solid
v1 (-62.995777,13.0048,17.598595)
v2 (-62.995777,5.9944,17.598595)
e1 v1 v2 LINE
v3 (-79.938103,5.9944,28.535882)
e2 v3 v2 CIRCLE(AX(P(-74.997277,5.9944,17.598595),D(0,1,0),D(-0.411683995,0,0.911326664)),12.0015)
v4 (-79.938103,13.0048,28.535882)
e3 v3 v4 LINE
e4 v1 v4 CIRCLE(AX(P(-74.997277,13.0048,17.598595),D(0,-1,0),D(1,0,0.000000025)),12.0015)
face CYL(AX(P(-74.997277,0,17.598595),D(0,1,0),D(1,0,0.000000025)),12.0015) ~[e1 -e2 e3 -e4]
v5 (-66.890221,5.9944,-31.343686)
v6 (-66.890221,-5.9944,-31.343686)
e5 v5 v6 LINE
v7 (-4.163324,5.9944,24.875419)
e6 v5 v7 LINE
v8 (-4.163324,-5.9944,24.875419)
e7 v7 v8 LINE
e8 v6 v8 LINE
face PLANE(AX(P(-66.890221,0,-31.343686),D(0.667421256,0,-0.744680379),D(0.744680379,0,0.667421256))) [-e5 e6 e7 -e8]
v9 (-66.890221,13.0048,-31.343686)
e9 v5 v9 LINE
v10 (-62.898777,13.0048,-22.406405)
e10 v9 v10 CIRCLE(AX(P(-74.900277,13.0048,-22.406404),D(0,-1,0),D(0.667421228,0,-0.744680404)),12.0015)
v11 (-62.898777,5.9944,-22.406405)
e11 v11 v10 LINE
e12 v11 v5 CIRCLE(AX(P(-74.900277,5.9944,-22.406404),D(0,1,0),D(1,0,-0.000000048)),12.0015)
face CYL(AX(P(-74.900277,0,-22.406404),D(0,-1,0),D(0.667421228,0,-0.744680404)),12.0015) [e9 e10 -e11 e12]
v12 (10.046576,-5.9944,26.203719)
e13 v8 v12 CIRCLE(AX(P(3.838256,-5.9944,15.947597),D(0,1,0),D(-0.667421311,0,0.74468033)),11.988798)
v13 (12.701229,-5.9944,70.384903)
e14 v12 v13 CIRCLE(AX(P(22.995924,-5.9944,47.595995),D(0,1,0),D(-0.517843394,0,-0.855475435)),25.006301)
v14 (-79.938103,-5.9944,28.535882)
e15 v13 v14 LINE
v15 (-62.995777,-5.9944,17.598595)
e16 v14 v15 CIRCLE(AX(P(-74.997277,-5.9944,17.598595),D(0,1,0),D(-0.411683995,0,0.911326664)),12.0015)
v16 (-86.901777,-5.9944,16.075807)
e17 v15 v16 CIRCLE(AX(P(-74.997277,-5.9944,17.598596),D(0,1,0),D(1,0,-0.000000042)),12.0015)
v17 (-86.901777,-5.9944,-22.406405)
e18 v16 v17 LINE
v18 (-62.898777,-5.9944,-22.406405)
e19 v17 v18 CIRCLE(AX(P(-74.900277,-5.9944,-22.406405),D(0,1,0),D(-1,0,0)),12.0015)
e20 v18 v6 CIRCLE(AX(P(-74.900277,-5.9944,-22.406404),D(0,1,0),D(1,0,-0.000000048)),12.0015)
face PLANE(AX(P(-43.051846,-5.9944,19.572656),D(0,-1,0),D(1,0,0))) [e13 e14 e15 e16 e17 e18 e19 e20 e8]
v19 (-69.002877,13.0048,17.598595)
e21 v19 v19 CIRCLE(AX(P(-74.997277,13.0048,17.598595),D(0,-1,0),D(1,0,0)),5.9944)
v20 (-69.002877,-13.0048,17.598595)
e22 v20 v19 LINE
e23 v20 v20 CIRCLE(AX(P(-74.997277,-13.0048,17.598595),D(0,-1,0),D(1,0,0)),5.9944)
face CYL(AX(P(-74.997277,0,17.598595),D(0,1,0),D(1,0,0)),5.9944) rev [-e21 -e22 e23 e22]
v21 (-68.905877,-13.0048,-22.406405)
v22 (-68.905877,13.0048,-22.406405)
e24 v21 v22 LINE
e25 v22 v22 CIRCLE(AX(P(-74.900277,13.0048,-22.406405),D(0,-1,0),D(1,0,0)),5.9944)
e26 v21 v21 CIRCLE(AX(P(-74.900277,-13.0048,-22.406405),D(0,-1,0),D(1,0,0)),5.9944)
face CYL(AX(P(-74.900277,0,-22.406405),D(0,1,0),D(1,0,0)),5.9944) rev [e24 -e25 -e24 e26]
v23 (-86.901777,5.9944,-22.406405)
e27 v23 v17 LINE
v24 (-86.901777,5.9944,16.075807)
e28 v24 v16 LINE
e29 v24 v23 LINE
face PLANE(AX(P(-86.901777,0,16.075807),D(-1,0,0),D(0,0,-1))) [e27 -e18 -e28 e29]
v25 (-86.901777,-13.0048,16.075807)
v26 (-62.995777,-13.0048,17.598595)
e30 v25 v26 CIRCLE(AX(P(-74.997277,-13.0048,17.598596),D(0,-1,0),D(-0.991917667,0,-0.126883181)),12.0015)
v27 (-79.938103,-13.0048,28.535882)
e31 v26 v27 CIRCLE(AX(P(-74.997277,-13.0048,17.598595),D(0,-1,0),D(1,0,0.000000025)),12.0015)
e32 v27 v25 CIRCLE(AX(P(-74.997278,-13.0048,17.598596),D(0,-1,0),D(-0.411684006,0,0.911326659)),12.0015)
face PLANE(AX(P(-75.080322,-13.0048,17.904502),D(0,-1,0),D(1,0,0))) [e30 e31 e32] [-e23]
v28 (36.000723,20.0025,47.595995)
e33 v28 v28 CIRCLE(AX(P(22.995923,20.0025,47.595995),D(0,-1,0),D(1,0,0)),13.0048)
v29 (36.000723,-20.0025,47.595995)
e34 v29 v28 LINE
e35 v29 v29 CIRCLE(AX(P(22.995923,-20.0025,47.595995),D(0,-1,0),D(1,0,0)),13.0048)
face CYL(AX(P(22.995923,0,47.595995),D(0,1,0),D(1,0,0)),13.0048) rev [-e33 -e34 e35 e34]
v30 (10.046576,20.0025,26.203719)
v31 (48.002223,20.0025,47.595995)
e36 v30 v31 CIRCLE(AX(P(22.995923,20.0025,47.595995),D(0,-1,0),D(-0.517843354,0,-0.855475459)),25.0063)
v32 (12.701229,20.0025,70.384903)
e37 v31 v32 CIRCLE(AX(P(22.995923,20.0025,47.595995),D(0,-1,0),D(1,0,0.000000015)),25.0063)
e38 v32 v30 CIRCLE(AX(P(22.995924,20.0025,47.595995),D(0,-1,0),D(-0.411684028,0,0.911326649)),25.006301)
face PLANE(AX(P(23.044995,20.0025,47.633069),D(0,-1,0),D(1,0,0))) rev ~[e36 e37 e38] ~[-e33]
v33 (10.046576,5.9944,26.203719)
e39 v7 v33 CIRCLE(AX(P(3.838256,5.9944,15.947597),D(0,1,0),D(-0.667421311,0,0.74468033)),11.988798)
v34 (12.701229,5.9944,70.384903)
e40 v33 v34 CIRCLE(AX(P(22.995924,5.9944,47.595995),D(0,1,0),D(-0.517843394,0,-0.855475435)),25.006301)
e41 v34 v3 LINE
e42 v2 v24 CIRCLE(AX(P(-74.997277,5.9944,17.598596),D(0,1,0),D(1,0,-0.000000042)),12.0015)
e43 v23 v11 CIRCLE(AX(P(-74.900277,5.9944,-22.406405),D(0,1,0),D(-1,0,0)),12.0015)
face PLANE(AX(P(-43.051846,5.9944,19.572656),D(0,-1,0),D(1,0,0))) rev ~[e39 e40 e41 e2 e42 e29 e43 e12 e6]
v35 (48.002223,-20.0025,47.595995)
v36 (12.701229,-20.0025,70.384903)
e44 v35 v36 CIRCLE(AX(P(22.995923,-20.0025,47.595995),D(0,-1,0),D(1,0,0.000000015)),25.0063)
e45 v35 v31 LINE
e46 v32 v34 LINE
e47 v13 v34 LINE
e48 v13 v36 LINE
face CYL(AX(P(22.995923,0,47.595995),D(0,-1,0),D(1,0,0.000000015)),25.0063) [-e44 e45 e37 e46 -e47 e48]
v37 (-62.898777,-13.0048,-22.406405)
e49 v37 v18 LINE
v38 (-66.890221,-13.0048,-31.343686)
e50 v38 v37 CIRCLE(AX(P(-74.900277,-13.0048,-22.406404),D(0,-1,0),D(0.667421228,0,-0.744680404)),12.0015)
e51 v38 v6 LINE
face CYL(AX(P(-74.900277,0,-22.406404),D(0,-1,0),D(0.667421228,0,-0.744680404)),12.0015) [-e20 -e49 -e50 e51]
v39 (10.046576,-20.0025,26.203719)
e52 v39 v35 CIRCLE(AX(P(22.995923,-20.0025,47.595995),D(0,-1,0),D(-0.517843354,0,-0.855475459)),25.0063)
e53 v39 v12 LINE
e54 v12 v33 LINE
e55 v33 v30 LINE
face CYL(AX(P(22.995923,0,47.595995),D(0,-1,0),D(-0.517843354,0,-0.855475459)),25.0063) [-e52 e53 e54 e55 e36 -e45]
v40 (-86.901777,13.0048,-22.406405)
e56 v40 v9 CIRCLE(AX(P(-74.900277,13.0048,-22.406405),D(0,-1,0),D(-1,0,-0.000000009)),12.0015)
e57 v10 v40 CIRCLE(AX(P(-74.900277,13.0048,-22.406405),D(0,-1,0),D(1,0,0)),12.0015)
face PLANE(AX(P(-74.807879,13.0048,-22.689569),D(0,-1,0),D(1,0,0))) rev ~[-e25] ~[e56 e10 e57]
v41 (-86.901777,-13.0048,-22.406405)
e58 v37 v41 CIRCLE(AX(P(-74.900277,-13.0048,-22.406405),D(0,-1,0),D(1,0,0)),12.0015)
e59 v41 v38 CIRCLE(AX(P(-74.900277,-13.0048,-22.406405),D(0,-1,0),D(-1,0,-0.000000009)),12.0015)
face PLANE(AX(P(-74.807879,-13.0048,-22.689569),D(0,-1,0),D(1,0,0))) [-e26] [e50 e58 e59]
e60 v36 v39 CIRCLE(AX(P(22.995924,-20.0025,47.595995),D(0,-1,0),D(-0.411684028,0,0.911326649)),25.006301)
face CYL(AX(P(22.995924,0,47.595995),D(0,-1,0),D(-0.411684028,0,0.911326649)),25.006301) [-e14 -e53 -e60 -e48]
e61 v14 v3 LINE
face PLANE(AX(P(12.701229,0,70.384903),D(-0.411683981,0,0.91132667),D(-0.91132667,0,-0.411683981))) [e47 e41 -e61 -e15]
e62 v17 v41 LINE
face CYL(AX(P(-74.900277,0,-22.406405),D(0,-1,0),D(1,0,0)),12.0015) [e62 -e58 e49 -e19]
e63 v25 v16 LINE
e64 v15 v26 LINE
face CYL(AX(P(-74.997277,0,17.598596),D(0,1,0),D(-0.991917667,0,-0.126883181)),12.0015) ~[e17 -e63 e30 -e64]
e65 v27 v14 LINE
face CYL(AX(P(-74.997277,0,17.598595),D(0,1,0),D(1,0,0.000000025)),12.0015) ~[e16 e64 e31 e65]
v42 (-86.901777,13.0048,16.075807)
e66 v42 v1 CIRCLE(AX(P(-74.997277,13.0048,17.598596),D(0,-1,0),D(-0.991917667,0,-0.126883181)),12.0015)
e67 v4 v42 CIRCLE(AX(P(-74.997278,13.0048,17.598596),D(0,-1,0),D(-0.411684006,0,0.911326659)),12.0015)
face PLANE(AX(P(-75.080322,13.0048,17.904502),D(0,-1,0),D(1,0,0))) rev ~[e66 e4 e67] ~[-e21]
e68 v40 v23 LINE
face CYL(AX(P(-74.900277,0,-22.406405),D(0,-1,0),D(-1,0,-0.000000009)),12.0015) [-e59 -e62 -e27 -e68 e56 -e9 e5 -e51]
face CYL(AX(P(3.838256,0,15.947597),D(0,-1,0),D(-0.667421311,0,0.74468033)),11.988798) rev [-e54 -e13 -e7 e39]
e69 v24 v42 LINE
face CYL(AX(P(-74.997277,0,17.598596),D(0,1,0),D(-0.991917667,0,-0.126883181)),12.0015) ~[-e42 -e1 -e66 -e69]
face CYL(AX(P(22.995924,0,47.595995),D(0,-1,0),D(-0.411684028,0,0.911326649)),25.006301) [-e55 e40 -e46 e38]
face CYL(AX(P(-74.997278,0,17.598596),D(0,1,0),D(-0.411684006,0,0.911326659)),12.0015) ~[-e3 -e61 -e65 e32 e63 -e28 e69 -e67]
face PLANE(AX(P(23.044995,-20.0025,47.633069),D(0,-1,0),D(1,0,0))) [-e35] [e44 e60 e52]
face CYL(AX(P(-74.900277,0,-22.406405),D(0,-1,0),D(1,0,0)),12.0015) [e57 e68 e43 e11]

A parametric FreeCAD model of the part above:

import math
import FreeCAD as App
import Part
import Sketcher

V = App.Vector
Q = App.Units.Quantity

doc = App.newDocument("Part")
params = doc.addObject("Spreadsheet::Sheet", "Params")
for row, (alias, value) in enumerate([
    ("sketch1_radius", "0.4719999 in"),
    ("pad1_length", "0.472 in"),
    ("sketch2_diameter", "1.024 in"),
    ("pad2_length", "1.575 in"),
    ("sketch3_diameter", "0.472 in"),
    ("pad3_length", "1.024 in"),
], start=1):
    params.set(f"A{row}", alias)
    params.set(f"B{row}", "=" + value)
    params.setAlias(f"B{row}", alias)

body = doc.addObject("PartDesign::Body", "Body")

# Sketch on XZ plane
sketch1 = body.newObject("Sketcher::SketchObject", "Sketch")
sketch1.AttachmentSupport = (doc.getObject("XZ_Plane"), [""])
sketch1.MapMode = "FlatFace"
sketch1.addGeometry([
    Part.ArcOfCircle(Part.Circle(V(-75, 18, 0), V(0, 0, 1), 12), math.radians(0), math.radians(114)),  # 0
    Part.ArcOfCircle(Part.Circle(V(-75, 18, 0), V(0, 0, 1), 12), math.radians(-173), math.radians(0)),  # 1
    Part.LineSegment(V(-87, 16, 0), V(-87, -22, 0)),  # 2
    Part.ArcOfCircle(Part.Circle(V(-75, -22, 0), V(0, 0, 1), 12), math.radians(0), math.radians(180)),  # 3
    Part.ArcOfCircle(Part.Circle(V(-75, -22, 0), V(0, 0, 1), 12), math.radians(-48), math.radians(0)),  # 4
    Part.LineSegment(V(-67, -31, 0), V(-4, 25, 0)),  # 5
    Part.ArcOfCircle(Part.Circle(V(4, 16, 0), V(0, 0, 1), 12), math.radians(59), math.radians(132)),  # 6
    Part.ArcOfCircle(Part.Circle(V(23, 48, 0), V(0, 0, 1), 25), math.radians(114), math.radians(239)),  # 7
    Part.LineSegment(V(13, 70, 0), V(-80, 29, 0)),  # 8
], False)
sketch1.addConstraint([
    Sketcher.Constraint("Tangent", 0, 1, 1, 2),
    Sketcher.Constraint("Coincident", 1, 1, 2, 1),
    Sketcher.Constraint("Tangent", 2, 2, 3, 2),
    Sketcher.Constraint("Tangent", 3, 1, 4, 2),
    Sketcher.Constraint("Tangent", 4, 1, 5, 1),
    Sketcher.Constraint("Tangent", 5, 2, 6, 2),
    Sketcher.Constraint("Tangent", 6, 1, 7, 2),
    Sketcher.Constraint("Tangent", 7, 1, 8, 1),
    Sketcher.Constraint("Tangent", 8, 2, 0, 2),
    Sketcher.Constraint("Vertical", 2),
    Sketcher.Constraint("Equal", 0, 1),
    Sketcher.Constraint("Equal", 1, 3),
    Sketcher.Constraint("Equal", 3, 4),
    Sketcher.Constraint("Horizontal", 1, 3, 0, 1),
    Sketcher.Constraint("Horizontal", 2, 2, 3, 1),
    Sketcher.Constraint("Radius", 6, Q("0.4719999 in")),
    Sketcher.Constraint("Radius", 0, Q("0.4725 in")),
    Sketcher.Constraint("Radius", 7, Q("0.9845 in")),
    Sketcher.Constraint("DistanceY", 4, 3, 6, 3, Q("1.51 in")),
    Sketcher.Constraint("DistanceY", 3, 3, 0, 3, Q("1.575 in")),
    Sketcher.Constraint("DistanceY", 6, 3, 7, 3, Q("1.2459999 in")),
    Sketcher.Constraint("DistanceX", 1, 3, 7, 3, Q("3.858 in")),
    Sketcher.Constraint("DistanceX", 0, 3, 3, 3, 0.097),
    Sketcher.Constraint("DistanceX", 4, 1, -1, 1, 66.890221),
    Sketcher.Constraint("DistanceY", -1, 1, 5, 2, 24.875419),
])
sketch1.setExpression("Constraints[15]", "Params.sketch1_radius")
pad1 = body.newObject("PartDesign::Pad", "Pad")
pad1.Profile = sketch1
pad1.setExpression("Length", "Params.pad1_length")
pad1.Midplane = True

# Sketch on XZ plane
sketch2 = body.newObject("Sketcher::SketchObject", "Sketch001")
sketch2.AttachmentSupport = (doc.getObject("XZ_Plane"), [""])
sketch2.MapMode = "FlatFace"
sketch2.addGeometry([
    Part.ArcOfCircle(Part.Circle(V(23, 48, 0), V(0, 0, 1), 25), math.radians(0), math.radians(114)),
    Part.ArcOfCircle(Part.Circle(V(23, 48, 0), V(0, 0, 1), 25), math.radians(114), math.radians(239)),
    Part.ArcOfCircle(Part.Circle(V(23, 48, 0), V(0, 0, 1), 25), math.radians(-121), math.radians(0)),
    Part.Circle(V(23, 48, 0), V(0, 0, 1), 13),
], False)
sketch2.addConstraint([
    Sketcher.Constraint("Tangent", 0, 2, 1, 1),
    Sketcher.Constraint("Tangent", 1, 2, 2, 1),
    Sketcher.Constraint("Tangent", 2, 2, 0, 1),
    Sketcher.Constraint("Coincident", 3, 3, 0, 3),
    Sketcher.Constraint("Horizontal", 3, 3, 2, 2),
    Sketcher.Constraint("Diameter", 3, Q("1.024 in")),
    Sketcher.Constraint("Radius", 0, Q("0.9845 in")),
    Sketcher.Constraint("DistanceX", -1, 1, 0, 2, 12.701229),
    Sketcher.Constraint("DistanceY", -1, 1, 1, 2, 26.203719),
    Sketcher.Constraint("DistanceY", 3, 3, 0, 2, 22.788908),
    Sketcher.Constraint("DistanceY", -1, 1, 0, 3, 47.595995),
])
sketch2.setExpression("Constraints[5]", "Params.sketch2_diameter")
pad2 = body.newObject("PartDesign::Pad", "Pad001")
pad2.Profile = sketch2
pad2.setExpression("Length", "Params.pad2_length")
pad2.Midplane = True

# Sketch on XZ plane
sketch3 = body.newObject("Sketcher::SketchObject", "Sketch002")
sketch3.AttachmentSupport = (doc.getObject("XZ_Plane"), [""])
sketch3.MapMode = "FlatFace"
sketch3.addGeometry([
    Part.ArcOfCircle(Part.Circle(V(-75, 18, 0), V(0, 0, 1), 12), math.radians(-173), math.radians(0)),  # 0
    Part.ArcOfCircle(Part.Circle(V(-75, 18, 0), V(0, 0, 1), 12), math.radians(0), math.radians(114)),  # 1
    Part.ArcOfCircle(Part.Circle(V(-75, 18, 0), V(0, 0, 1), 12), math.radians(114), math.radians(187)),  # 2
    Part.Circle(V(-75, 18, 0), V(0, 0, 1), 6),  # 3
    Part.ArcOfCircle(Part.Circle(V(-75, -22, 0), V(0, 0, 1), 12), math.radians(0), math.radians(180)),  # 4
    Part.ArcOfCircle(Part.Circle(V(-75, -22, 0), V(0, 0, 1), 12), math.radians(-180), math.radians(-48)),  # 5
    Part.ArcOfCircle(Part.Circle(V(-75, -22, 0), V(0, 0, 1), 12), math.radians(-48), math.radians(0)),  # 6
    Part.Circle(V(-75, -22, 0), V(0, 0, 1), 6),  # 7
], False)
sketch3.addConstraint([
    Sketcher.Constraint("Tangent", 0, 2, 1, 1),
    Sketcher.Constraint("Tangent", 1, 2, 2, 1),
    Sketcher.Constraint("Tangent", 2, 2, 0, 1),
    Sketcher.Constraint("Tangent", 4, 2, 5, 1),
    Sketcher.Constraint("Tangent", 5, 2, 6, 1),
    Sketcher.Constraint("Tangent", 6, 2, 4, 1),
    Sketcher.Constraint("Coincident", 3, 3, 0, 3),
    Sketcher.Constraint("Coincident", 7, 3, 4, 3),
    Sketcher.Constraint("Equal", 2, 4),
    Sketcher.Constraint("Equal", 3, 7),
    Sketcher.Constraint("Horizontal", 3, 3, 0, 2),
    Sketcher.Constraint("Horizontal", 7, 3, 4, 2),
    Sketcher.Constraint("Horizontal", 4, 2, 6, 2),
    Sketcher.Constraint("Vertical", 2, 2, 4, 2),
    Sketcher.Constraint("Diameter", 3, Q("0.472 in")),
    Sketcher.Constraint("Radius", 0, Q("0.4725 in")),
    Sketcher.Constraint("DistanceY", 4, 3, 1, 3, Q("1.575 in")),
    Sketcher.Constraint("DistanceX", 1, 3, 4, 3, 0.097),
    Sketcher.Constraint("DistanceX", 5, 2, -1, 1, 66.890221),
    Sketcher.Constraint("DistanceY", 5, 2, 4, 3, 8.937281),
    Sketcher.Constraint("DistanceY", -1, 1, 0, 3, 17.598596),
    Sketcher.Constraint("DistanceX", 1, 2, -1, 1, 79.938103),
])
sketch3.setExpression("Constraints[14]", "Params.sketch3_diameter")
pad3 = body.newObject("PartDesign::Pad", "Pad002")
pad3.Profile = sketch3
pad3.setExpression("Length", "Params.pad3_length")
pad3.Midplane = True

doc.recompute()
